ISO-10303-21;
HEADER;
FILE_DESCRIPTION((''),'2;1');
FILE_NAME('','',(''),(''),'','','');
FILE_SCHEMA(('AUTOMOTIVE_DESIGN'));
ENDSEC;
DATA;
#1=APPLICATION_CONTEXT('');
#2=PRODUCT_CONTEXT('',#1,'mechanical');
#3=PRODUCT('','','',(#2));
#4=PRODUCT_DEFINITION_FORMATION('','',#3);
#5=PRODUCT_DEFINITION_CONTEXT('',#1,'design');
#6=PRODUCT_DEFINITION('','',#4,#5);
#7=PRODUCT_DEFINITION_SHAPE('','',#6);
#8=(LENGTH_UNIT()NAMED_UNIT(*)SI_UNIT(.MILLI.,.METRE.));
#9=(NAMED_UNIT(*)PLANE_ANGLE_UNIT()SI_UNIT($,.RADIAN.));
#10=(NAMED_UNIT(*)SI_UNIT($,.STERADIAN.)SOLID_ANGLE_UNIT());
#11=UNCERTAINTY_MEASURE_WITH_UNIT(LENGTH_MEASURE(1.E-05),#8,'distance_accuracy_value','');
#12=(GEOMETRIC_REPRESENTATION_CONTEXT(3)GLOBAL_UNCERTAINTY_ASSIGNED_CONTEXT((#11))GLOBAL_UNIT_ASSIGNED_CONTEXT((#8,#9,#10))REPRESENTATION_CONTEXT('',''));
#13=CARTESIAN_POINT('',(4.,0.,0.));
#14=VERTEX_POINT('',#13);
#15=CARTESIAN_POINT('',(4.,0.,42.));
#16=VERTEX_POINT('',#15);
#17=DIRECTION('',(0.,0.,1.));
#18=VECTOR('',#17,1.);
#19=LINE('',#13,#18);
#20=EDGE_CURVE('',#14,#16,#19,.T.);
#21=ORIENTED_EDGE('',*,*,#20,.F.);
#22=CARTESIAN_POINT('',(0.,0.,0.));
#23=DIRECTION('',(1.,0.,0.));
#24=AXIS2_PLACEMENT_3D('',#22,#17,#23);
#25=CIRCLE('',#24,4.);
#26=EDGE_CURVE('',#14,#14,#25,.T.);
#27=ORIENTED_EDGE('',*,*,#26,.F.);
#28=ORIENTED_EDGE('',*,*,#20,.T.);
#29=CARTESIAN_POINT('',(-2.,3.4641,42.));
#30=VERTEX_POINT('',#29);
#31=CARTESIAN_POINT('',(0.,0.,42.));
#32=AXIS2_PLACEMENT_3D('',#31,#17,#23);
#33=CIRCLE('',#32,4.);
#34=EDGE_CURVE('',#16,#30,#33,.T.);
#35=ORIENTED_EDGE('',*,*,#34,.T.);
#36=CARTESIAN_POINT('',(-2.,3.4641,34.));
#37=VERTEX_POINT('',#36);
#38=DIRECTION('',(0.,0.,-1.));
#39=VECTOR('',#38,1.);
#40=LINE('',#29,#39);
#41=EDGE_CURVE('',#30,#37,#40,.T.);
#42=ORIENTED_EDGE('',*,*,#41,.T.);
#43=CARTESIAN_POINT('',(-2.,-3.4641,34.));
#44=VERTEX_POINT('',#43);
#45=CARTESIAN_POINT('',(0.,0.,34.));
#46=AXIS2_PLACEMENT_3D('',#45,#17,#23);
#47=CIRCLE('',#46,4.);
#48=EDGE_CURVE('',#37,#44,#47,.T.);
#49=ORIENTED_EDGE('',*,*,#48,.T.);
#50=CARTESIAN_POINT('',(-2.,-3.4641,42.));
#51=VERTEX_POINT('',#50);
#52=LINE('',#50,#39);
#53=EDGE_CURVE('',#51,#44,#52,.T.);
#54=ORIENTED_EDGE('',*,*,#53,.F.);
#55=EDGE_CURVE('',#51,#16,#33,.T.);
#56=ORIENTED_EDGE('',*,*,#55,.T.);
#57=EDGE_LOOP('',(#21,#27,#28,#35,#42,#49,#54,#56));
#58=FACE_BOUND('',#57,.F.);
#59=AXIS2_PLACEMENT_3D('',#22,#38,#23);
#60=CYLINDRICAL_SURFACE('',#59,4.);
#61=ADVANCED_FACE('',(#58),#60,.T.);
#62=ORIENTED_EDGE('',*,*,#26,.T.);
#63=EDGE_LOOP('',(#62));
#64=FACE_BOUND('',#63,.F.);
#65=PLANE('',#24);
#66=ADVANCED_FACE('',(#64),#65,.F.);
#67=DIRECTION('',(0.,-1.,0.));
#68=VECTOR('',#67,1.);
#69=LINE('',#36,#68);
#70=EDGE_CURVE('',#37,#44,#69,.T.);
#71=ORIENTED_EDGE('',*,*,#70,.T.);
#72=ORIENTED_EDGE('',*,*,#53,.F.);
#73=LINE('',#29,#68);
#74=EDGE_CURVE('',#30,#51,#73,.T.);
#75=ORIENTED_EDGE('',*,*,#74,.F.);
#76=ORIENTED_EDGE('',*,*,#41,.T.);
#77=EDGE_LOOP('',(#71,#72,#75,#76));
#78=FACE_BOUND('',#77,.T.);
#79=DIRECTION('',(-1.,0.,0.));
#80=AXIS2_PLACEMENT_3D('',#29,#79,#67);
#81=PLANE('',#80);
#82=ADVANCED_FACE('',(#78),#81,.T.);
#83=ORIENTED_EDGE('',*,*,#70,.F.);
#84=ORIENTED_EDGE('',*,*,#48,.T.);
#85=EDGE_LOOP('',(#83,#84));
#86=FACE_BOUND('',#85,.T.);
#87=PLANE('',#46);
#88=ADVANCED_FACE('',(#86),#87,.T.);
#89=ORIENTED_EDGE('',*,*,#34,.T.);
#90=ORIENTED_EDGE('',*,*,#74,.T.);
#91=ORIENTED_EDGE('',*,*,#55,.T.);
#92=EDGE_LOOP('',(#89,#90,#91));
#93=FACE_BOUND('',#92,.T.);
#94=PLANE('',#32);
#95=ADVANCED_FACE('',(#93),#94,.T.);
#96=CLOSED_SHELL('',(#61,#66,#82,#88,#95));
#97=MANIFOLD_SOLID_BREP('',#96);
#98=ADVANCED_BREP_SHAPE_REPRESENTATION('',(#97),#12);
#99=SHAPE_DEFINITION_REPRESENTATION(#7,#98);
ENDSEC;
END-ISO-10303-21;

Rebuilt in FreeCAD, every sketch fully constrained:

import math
import FreeCAD as App
import Part
import Sketcher

V = App.Vector

doc = App.newDocument("Part")
params = doc.addObject("Spreadsheet::Sheet", "Params")
for row, (alias, value) in enumerate([
    ("sketch1_diameter", "8 mm"),
    ("pad1_length", "42 mm"),
    ("sketch2_radius", "4 mm"),
    ("pocket1_length", "8 mm"),
], start=1):
    params.set(f"A{row}", alias)
    params.set(f"B{row}", "=" + value)
    params.setAlias(f"B{row}", alias)

body = doc.addObject("PartDesign::Body", "Body")

sketch1 = body.newObject("Sketcher::SketchObject", "Sketch")
sketch1.AttachmentSupport = (doc.getObject("XY_Plane"), [""])
sketch1.MapMode = "FlatFace"
sketch1.addGeometry(Part.Circle(V(0, 0, 0), V(0, 0, 1), 4), False)
sketch1.addConstraint([
    Sketcher.Constraint("Coincident", 0, 3, -1, 1),
    Sketcher.Constraint("Diameter", 0, 8.0),
])
sketch1.setExpression("Constraints[1]", "Params.sketch1_diameter")
pad1 = body.newObject("PartDesign::Pad", "Pad")
pad1.Profile = sketch1
pad1.setExpression("Length", "Params.pad1_length")

sketch2 = body.newObject("Sketcher::SketchObject", "Sketch001")
sketch2.AttachmentSupport = (doc.getObject("XY_Plane"), [""])
sketch2.MapMode = "FlatFace"
sketch2.AttachmentOffset = App.Placement(V(0, 0, 42), App.Rotation())
sketch2.addGeometry([
    Part.LineSegment(V(-2, -3.5, 0), V(-2, 3.5, 0)),
    Part.ArcOfCircle(Part.Circle(V(0, 0, 0), V(0, 0, 1), 4), math.radians(120), math.radians(240)),
], False)
sketch2.addConstraint([
    Sketcher.Constraint("Coincident", 0, 1, 1, 2),
    Sketcher.Constraint("Coincident", 1, 1, 0, 2),
    Sketcher.Constraint("Vertical", 0),
    Sketcher.Constraint("Coincident", 1, 3, -1, 1),
    Sketcher.Constraint("Radius", 1, 4.0),
    Sketcher.Constraint("DistanceX", 0, 1, -1, 1, 2.0),
])
sketch2.setExpression("Constraints[4]", "Params.sketch2_radius")
pocket1 = body.newObject("PartDesign::Pocket", "Pocket")
pocket1.Profile = sketch2
pocket1.setExpression("Length", "Params.pocket1_length")

doc.recompute()
